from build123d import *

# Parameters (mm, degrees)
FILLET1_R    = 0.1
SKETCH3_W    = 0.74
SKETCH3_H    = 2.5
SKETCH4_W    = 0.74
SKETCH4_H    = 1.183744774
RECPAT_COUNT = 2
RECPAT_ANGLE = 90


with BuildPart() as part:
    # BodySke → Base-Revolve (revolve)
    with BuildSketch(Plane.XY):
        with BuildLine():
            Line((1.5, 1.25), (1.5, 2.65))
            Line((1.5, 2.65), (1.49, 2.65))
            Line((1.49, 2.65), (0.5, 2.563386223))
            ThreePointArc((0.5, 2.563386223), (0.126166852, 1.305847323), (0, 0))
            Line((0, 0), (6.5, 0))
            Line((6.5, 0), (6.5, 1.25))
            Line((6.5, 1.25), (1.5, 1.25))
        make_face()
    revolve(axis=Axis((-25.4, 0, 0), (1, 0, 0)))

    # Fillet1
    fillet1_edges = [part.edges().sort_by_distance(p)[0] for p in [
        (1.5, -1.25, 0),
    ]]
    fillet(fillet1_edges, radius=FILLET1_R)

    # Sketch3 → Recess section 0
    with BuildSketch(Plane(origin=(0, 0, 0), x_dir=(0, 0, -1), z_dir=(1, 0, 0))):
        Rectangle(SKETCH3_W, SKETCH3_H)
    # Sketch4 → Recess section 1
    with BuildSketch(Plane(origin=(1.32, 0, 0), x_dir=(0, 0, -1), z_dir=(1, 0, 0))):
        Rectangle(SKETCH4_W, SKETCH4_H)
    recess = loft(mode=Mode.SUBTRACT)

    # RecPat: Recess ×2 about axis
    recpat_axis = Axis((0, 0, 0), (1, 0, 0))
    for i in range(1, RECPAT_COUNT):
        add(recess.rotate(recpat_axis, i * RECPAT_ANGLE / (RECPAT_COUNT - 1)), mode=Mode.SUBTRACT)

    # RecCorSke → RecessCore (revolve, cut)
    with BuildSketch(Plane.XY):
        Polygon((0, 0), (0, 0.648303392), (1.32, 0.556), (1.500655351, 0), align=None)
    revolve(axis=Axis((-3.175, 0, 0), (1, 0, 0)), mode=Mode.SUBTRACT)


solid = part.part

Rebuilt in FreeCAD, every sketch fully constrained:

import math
import FreeCAD as App
import Part
import Sketcher
from FreeCAD import Vector
Q = App.Units.Quantity


def edges_at(feature, points):
    """Names of the edges that pass closest to the given points."""
    edges = feature.Shape.Edges
    near = lambda p: min(range(len(edges)), key=lambda i: edges[i].distToShape(Part.Vertex(*p))[0])
    return sorted({f"Edge{near(p) + 1}" for p in points})

doc = App.newDocument("Part")
body = doc.addObject("PartDesign::Body", "Body")

# Sketch on XY plane
sketch1 = body.newObject("Sketcher::SketchObject", "Sketch")
sketch1.AttachmentSupport = (doc.getObject("XY_Plane"), [""])
sketch1.MapMode = "FlatFace"
sketch1.addGeometry([
    Part.LineSegment(Vector(1.5, 1.25, 0), Vector(1.5, 2.65, 0)),  # 0
    Part.LineSegment(Vector(1.5, 2.65, 0), Vector(1.49, 2.65, 0)),  # 1
    Part.LineSegment(Vector(1.49, 2.65, 0), Vector(0.5, 2.563, 0)),  # 2
    Part.ArcOfCircle(Part.Circle(Vector(6.821, 0, 0), Vector(0, 0, 1), 6.821), math.radians(158), math.radians(180)),  # 3
    Part.LineSegment(Vector(0, 0, 0), Vector(6.5, 0, 0)),  # 4
    Part.LineSegment(Vector(6.5, 0, 0), Vector(6.5, 1.25, 0)),  # 5
    Part.LineSegment(Vector(6.5, 1.25, 0), Vector(1.5, 1.25, 0)),  # 6
], False)
sketch1.addConstraint([
    Sketcher.Constraint("Coincident", 0, 2, 1, 1),
    Sketcher.Constraint("Coincident", 1, 2, 2, 1),
    Sketcher.Constraint("Coincident", 2, 2, 3, 1),
    Sketcher.Constraint("Coincident", 3, 2, 4, 1),
    Sketcher.Constraint("Coincident", 4, 2, 5, 1),
    Sketcher.Constraint("Coincident", 5, 2, 6, 1),
    Sketcher.Constraint("Coincident", 6, 2, 0, 1),
    Sketcher.Constraint("Vertical", 0),
    Sketcher.Constraint("Horizontal", 1),
    Sketcher.Constraint("Horizontal", 4),
    Sketcher.Constraint("Vertical", 5),
    Sketcher.Constraint("Horizontal", 6),
    Sketcher.Constraint("Coincident", 3, 2, -1, 1),
    Sketcher.Constraint("PointOnObject", 3, 3, -1),
    Sketcher.Constraint("DistanceX", 6, 2, 6, 1, Q("5 mm")),
    Sketcher.Constraint("Angle", 2, Q("-175 deg")),
    Sketcher.Constraint("DistanceX", 4, 1, 4, 2, Q("6.5 mm")),
    Sketcher.Constraint("DistanceY", 0, 1, 0, 2, Q("1.4 mm")),
    Sketcher.Constraint("DistanceX", 2, 2, 0, 2, Q("1 mm")),
    Sketcher.Constraint("DistanceX", 1, 2, 1, 1, Q("0.01 mm")),
    Sketcher.Constraint("DistanceY", 5, 1, 5, 2, Q("1.25 mm")),
])
revolution = body.newObject("PartDesign::Revolution", "Revolution")
revolution.Profile = sketch1
revolution.ReferenceAxis = (sketch1, ["H_Axis"])
revolution.Angle = 360
doc.recompute()

fillet = body.newObject("PartDesign::Fillet", "Fillet")
fillet.Base = (revolution, edges_at(revolution, [(1.5, -1.25, 0)]))
fillet.Radius = 0.1

# Sketch on YZ plane
sketch2 = body.newObject("Sketcher::SketchObject", "Sketch001")
sketch2.AttachmentSupport = (doc.getObject("YZ_Plane"), [""])
sketch2.MapMode = "FlatFace"
sketch2.addGeometry([
    Part.LineSegment(Vector(1.2, 0.4, 0), Vector(-1.2, 0.4, 0)),
    Part.LineSegment(Vector(-1.2, 0.4, 0), Vector(-1.2, -0.4, 0)),
    Part.LineSegment(Vector(-1.2, -0.4, 0), Vector(1.2, -0.4, 0)),
    Part.LineSegment(Vector(1.2, -0.4, 0), Vector(1.2, 0.4, 0)),
], False)
sketch2.addConstraint([
    Sketcher.Constraint("Coincident", 0, 2, 1, 1),
    Sketcher.Constraint("Coincident", 1, 2, 2, 1),
    Sketcher.Constraint("Coincident", 2, 2, 3, 1),
    Sketcher.Constraint("Coincident", 3, 2, 0, 1),
    Sketcher.Constraint("Horizontal", 0),
    Sketcher.Constraint("Vertical", 1),
    Sketcher.Constraint("Horizontal", 2),
    Sketcher.Constraint("Vertical", 3),
    Sketcher.Constraint("Symmetric", 0, 2, 2, 2, -1, 1),
    Sketcher.Constraint("DistanceX", 0, 2, 0, 1, Q("2.5 mm")),
    Sketcher.Constraint("DistanceY", 1, 2, 1, 1, Q("0.74 mm")),
])

# Sketch on YZ plane
sketch3 = body.newObject("Sketcher::SketchObject", "Sketch002")
sketch3.AttachmentSupport = (doc.getObject("YZ_Plane"), [""])
sketch3.MapMode = "FlatFace"
sketch3.AttachmentOffset = App.Placement(Vector(0, 0, 1.32), App.Rotation())
sketch3.addGeometry([
    Part.LineSegment(Vector(0.6, 0.4, 0), Vector(-0.6, 0.4, 0)),
    Part.LineSegment(Vector(-0.6, 0.4, 0), Vector(-0.6, -0.4, 0)),
    Part.LineSegment(Vector(-0.6, -0.4, 0), Vector(0.6, -0.4, 0)),
    Part.LineSegment(Vector(0.6, -0.4, 0), Vector(0.6, 0.4, 0)),
], False)
sketch3.addConstraint([
    Sketcher.Constraint("Coincident", 0, 2, 1, 1),
    Sketcher.Constraint("Coincident", 1, 2, 2, 1),
    Sketcher.Constraint("Coincident", 2, 2, 3, 1),
    Sketcher.Constraint("Coincident", 3, 2, 0, 1),
    Sketcher.Constraint("Horizontal", 0),
    Sketcher.Constraint("Vertical", 1),
    Sketcher.Constraint("Horizontal", 2),
    Sketcher.Constraint("Vertical", 3),
    Sketcher.Constraint("Symmetric", 0, 2, 2, 2, -1, 1),
    Sketcher.Constraint("DistanceY", 1, 2, 1, 1, Q("0.74 mm")),
    Sketcher.Constraint("DistanceX", 0, 2, 0, 1, Q("1.183745 mm")),
])

subtractiveloft = body.newObject("PartDesign::SubtractiveLoft", "SubtractiveLoft")
subtractiveloft.Profile = sketch2
subtractiveloft.Sections = [sketch3]
doc.recompute()

polarpattern = body.newObject("PartDesign::PolarPattern", "PolarPattern")
polarpattern.Originals = [subtractiveloft]
polarpattern.Axis = (doc.getObject("X_Axis"), [""])
polarpattern.Angle = 90
polarpattern.Occurrences = 2
body.Tip = polarpattern

# Sketch on XY plane
sketch4 = body.newObject("Sketcher::SketchObject", "Sketch003")
sketch4.AttachmentSupport = (doc.getObject("XY_Plane"), [""])
sketch4.MapMode = "FlatFace"
sketch4.addGeometry([
    Part.LineSegment(Vector(0, 0.6, 0), Vector(0, 0, 0)),
    Part.LineSegment(Vector(0, 0, 0), Vector(1.5, 0, 0)),
    Part.LineSegment(Vector(1.5, 0, 0), Vector(1.3, 0.6, 0)),
    Part.LineSegment(Vector(1.3, 0.6, 0), Vector(0, 0.6, 0)),
], False)
sketch4.addConstraint([
    Sketcher.Constraint("Coincident", 0, 2, 1, 1),
    Sketcher.Constraint("Coincident", 1, 2, 2, 1),
    Sketcher.Constraint("Coincident", 2, 2, 3, 1),
    Sketcher.Constraint("Coincident", 3, 2, 0, 1),
    Sketcher.Constraint("Vertical", 0),
    Sketcher.Constraint("Horizontal", 1),
    Sketcher.Constraint("Coincident", 0, 2, -1, 1),
    Sketcher.Constraint("Angle", 2, Q("108 deg")),
    Sketcher.Constraint("Angle", 3, Q("176 deg")),
    Sketcher.Constraint("DistanceX", -1, 1, 2, 2, Q("1.32 mm")),
    Sketcher.Constraint("DistanceY", -1, 1, 2, 2, Q("0.556 mm")),
])
groove = body.newObject("PartDesign::Groove", "Groove")
groove.Profile = sketch4
groove.ReferenceAxis = (sketch4, ["H_Axis"])
groove.Angle = 360

doc.recompute()
